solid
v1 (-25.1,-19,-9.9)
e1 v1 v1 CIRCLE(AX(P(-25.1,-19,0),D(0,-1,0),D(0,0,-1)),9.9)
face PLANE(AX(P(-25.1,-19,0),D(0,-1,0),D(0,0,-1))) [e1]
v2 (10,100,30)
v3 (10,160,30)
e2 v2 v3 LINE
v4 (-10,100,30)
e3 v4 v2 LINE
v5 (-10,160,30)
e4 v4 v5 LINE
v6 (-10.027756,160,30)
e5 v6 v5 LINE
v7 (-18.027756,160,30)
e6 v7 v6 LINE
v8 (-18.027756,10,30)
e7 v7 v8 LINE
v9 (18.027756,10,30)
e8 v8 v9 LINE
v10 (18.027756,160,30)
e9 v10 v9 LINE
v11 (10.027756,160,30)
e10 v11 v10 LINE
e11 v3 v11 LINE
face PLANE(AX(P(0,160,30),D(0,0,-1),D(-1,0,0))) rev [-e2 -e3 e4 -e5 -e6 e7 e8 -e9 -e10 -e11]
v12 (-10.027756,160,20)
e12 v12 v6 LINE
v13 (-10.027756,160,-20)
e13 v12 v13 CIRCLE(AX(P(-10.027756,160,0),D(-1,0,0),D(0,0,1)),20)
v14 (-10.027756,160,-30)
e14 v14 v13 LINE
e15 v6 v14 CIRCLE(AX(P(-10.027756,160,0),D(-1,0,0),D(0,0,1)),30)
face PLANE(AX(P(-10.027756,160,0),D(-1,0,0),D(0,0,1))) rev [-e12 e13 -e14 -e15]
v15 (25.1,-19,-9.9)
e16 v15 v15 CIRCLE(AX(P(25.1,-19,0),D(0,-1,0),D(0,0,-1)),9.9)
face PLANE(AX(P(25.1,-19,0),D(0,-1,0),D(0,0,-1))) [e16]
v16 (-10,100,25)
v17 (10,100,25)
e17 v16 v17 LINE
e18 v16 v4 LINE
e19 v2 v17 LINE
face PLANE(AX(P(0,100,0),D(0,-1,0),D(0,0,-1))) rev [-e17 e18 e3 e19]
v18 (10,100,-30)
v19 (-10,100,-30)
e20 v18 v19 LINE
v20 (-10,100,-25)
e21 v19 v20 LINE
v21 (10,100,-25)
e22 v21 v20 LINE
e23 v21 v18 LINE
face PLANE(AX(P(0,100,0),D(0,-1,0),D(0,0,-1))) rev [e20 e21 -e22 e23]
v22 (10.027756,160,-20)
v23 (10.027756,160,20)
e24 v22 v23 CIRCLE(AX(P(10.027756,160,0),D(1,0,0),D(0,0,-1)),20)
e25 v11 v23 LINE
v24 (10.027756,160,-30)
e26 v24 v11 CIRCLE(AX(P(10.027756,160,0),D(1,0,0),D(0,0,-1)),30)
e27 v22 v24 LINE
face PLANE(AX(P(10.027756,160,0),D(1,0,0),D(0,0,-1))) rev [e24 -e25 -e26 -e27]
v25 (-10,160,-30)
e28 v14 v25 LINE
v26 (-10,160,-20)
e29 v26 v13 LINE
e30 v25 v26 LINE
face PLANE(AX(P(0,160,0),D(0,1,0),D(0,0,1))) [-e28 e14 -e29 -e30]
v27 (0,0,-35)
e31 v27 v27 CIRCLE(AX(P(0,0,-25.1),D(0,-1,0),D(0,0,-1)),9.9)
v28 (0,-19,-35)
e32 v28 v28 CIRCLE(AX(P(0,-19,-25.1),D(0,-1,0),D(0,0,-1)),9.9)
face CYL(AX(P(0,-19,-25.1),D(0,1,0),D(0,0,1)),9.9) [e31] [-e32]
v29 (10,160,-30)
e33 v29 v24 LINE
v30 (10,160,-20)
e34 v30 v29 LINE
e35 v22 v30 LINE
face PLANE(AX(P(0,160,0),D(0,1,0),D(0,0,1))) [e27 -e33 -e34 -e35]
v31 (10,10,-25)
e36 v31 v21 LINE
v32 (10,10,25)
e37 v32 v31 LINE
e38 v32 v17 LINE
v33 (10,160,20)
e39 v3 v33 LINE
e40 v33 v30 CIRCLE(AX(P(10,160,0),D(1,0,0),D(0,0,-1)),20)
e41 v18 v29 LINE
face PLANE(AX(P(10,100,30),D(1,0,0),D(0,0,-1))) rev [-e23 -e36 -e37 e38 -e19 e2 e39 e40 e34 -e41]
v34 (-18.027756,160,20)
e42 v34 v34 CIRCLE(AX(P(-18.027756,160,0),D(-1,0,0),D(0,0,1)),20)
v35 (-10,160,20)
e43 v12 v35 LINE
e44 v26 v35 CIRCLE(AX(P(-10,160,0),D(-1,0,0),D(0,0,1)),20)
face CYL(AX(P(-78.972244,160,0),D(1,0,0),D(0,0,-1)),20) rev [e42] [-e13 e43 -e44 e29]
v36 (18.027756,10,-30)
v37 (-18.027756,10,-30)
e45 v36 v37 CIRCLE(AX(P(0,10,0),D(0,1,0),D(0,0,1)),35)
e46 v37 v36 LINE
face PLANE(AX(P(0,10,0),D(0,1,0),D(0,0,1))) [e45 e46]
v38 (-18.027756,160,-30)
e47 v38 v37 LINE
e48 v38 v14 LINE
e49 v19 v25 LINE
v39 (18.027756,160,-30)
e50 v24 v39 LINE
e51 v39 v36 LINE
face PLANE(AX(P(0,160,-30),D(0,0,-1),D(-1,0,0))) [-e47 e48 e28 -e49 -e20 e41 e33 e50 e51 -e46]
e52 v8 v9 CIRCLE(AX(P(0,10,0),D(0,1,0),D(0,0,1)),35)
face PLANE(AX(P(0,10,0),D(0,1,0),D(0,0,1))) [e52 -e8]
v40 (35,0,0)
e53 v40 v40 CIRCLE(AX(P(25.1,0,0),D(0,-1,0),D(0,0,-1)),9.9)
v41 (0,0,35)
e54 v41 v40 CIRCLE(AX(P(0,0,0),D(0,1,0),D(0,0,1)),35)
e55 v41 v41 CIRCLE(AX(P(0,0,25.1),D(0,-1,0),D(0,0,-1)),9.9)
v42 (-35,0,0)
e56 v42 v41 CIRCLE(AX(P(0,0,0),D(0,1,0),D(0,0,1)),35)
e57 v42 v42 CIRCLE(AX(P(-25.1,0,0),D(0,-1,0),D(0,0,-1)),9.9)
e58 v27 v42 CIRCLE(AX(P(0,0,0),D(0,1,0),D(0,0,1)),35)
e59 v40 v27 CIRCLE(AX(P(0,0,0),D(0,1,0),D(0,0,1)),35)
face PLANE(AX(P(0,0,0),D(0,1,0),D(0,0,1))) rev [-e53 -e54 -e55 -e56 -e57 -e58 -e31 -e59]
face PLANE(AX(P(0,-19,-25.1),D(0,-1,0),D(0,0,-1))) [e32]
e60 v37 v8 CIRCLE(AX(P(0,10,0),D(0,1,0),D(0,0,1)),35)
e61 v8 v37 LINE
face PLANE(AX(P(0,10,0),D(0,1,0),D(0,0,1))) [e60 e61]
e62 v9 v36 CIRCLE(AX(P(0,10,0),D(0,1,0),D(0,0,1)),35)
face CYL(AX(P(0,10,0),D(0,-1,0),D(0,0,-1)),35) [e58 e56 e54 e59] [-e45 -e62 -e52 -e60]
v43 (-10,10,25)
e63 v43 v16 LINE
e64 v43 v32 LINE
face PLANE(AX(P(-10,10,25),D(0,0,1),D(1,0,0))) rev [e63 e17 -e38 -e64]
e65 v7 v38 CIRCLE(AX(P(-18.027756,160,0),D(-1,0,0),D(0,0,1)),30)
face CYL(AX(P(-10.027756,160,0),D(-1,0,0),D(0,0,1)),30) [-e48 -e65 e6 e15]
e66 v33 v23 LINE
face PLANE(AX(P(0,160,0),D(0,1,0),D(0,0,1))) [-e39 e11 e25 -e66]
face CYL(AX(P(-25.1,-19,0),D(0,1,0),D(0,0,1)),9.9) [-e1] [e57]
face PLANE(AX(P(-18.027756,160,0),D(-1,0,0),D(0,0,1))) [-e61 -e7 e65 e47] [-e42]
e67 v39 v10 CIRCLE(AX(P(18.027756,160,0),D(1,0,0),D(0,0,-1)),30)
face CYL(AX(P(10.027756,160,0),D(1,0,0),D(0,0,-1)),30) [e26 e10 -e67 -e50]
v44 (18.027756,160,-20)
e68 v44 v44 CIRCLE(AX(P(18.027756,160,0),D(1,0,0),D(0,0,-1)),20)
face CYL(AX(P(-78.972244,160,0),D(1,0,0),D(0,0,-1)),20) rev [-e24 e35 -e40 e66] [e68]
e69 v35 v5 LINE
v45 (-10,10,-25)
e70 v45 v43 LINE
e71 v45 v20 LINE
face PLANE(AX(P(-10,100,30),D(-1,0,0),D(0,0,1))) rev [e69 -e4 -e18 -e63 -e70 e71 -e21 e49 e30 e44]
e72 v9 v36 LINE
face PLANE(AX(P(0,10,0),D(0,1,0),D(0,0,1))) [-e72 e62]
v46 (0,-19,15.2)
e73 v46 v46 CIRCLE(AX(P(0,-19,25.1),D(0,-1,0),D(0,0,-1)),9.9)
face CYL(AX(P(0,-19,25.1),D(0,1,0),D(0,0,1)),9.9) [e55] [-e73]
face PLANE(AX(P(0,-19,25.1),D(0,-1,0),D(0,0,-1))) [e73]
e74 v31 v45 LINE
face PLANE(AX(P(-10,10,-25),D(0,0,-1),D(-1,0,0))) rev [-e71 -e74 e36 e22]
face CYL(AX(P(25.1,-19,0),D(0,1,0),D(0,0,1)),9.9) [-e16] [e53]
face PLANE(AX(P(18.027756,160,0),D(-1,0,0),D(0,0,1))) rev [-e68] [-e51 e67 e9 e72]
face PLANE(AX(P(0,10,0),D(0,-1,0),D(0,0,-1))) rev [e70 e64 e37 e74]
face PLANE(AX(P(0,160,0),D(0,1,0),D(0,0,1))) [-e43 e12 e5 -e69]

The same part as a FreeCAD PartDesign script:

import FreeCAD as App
import Part
import Sketcher

V = App.Vector


def add_polygon(sketch, points):
    """Adds a closed chain of lines whose ends are joined by coincident constraints."""
    first, n = sketch.GeometryCount, len(points)
    for a, b in zip(points, points[1:] + points[:1]):
        sketch.addGeometry(Part.LineSegment(App.Vector(*a, 0), App.Vector(*b, 0)), False)
    for i in range(n):
        sketch.addConstraint(Sketcher.Constraint("Coincident", first + i, 2, first + (i + 1) % n, 1))

doc = App.newDocument("Part")
body = doc.addObject("PartDesign::Body", "Body")

sketch1 = body.newObject("Sketcher::SketchObject", "Sketch")
sketch1.AttachmentSupport = (doc.getObject("XZ_Plane"), [""])
sketch1.MapMode = "FlatFace"
sketch1.addGeometry(Part.Circle(V(0, 0, 0), V(0, 0, 1), 35), False)
sketch1.addConstraint([
    Sketcher.Constraint("Coincident", 0, 3, -1, 1),
    Sketcher.Constraint("Diameter", 0, 70.0),
])
pad1 = body.newObject("PartDesign::Pad", "Pad")
pad1.Profile = sketch1
pad1.Length = 10
pad1.Reversed = True

sketch2 = body.newObject("Sketcher::SketchObject", "Sketch001")
sketch2.AttachmentSupport = (doc.getObject("XZ_Plane"), [""])
sketch2.MapMode = "FlatFace"
sketch2.addGeometry([
    Part.Circle(V(25.1, 0, 0), V(0, 0, 1), 9.9),
    Part.Circle(V(0, -25.1, 0), V(0, 0, 1), 9.9),
    Part.Circle(V(-25.1, 0, 0), V(0, 0, 1), 9.9),
    Part.Circle(V(0, 25.1, 0), V(0, 0, 1), 9.9),
], False)
sketch2.addConstraint([
    Sketcher.Constraint("Equal", 0, 1),
    Sketcher.Constraint("Equal", 1, 2),
    Sketcher.Constraint("Equal", 2, 3),
    Sketcher.Constraint("Symmetric", 0, 3, 2, 3, -1, 1),
    Sketcher.Constraint("Symmetric", 1, 3, 3, 3, -1, 1),
    Sketcher.Constraint("PointOnObject", 0, 3, -1),
    Sketcher.Constraint("PointOnObject", 1, 3, -2),
    Sketcher.Constraint("Diameter", 0, 19.8),
    Sketcher.Constraint("DistanceX", -1, 1, 0, 3, 25.1),
    Sketcher.Constraint("DistanceY", 1, 3, -1, 1, 25.1),
])
pad2 = body.newObject("PartDesign::Pad", "Pad001")
pad2.Profile = sketch2
pad2.Length = 19

sketch3 = body.newObject("Sketcher::SketchObject", "Sketch002")
sketch3.AttachmentSupport = (doc.getObject("XZ_Plane"), [""])
sketch3.MapMode = "FlatFace"
sketch3.AttachmentOffset = App.Placement(V(0, 0, -10), App.Rotation())
add_polygon(sketch3, [(-18.027756, -30), (-18.027756, 30), (18.027756, 30), (18.027756, -30)])
sketch3.addConstraint([
    Sketcher.Constraint("Vertical", 0),
    Sketcher.Constraint("Horizontal", 1),
    Sketcher.Constraint("Vertical", 2),
    Sketcher.Constraint("Horizontal", 3),
    Sketcher.Constraint("Symmetric", 0, 2, 2, 2, -1, 1),
    Sketcher.Constraint("DistanceY", 0, 1, 0, 2, 60.0),
    Sketcher.Constraint("DistanceX", 1, 1, 1, 2, 36.055513),
])
pad3 = body.newObject("PartDesign::Pad", "Pad002")
pad3.Profile = sketch3
pad3.Length = 150
pad3.Reversed = True

sketch4 = body.newObject("Sketcher::SketchObject", "Sketch003")
sketch4.AttachmentSupport = (doc.getObject("XZ_Plane"), [""])
sketch4.MapMode = "FlatFace"
sketch4.AttachmentOffset = App.Placement(V(0, 0, -160), App.Rotation())
add_polygon(sketch4, [(-10, -30), (-10, 30), (10, 30), (10, -30)])
sketch4.addConstraint([
    Sketcher.Constraint("Vertical", 0),
    Sketcher.Constraint("Horizontal", 1),
    Sketcher.Constraint("Vertical", 2),
    Sketcher.Constraint("Horizontal", 3),
    Sketcher.Constraint("Symmetric", 0, 2, 2, 2, -1, 1),
    Sketcher.Constraint("DistanceX", 1, 1, 1, 2, 20.0),
    Sketcher.Constraint("DistanceY", 0, 1, 0, 2, 60.0),
])
pocket1 = body.newObject("PartDesign::Pocket", "Pocket")
pocket1.Profile = sketch4
pocket1.Length = 60
pocket1.Reversed = True

sketch5 = body.newObject("Sketcher::SketchObject", "Sketch004")
sketch5.AttachmentSupport = (doc.getObject("XZ_Plane"), [""])
sketch5.MapMode = "FlatFace"
sketch5.AttachmentOffset = App.Placement(V(0, 0, -100), App.Rotation())
add_polygon(sketch5, [(-10, -25), (-10, 25), (10, 25), (10, -25)])
sketch5.addConstraint([
    Sketcher.Constraint("Vertical", 0),
    Sketcher.Constraint("Horizontal", 1),
    Sketcher.Constraint("Vertical", 2),
    Sketcher.Constraint("Horizontal", 3),
    Sketcher.Constraint("Symmetric", 0, 2, 2, 2, -1, 1),
    Sketcher.Constraint("DistanceX", 1, 1, 1, 2, 20.0),
    Sketcher.Constraint("DistanceY", 0, 1, 0, 2, 50.0),
])
pocket2 = body.newObject("PartDesign::Pocket", "Pocket001")
pocket2.Profile = sketch5
pocket2.Length = 90
pocket2.Reversed = True

sketch6 = body.newObject("Sketcher::SketchObject", "Sketch005")
sketch6.AttachmentSupport = (doc.getObject("YZ_Plane"), [""])
sketch6.MapMode = "FlatFace"
sketch6.AttachmentOffset = App.Placement(V(0, 0, -18.027756), App.Rotation())
sketch6.addGeometry(Part.Circle(V(160, 0, 0), V(0, 0, 1), 30), False)
sketch6.addConstraint([
    Sketcher.Constraint("PointOnObject", 0, 3, -1),
    Sketcher.Constraint("Diameter", 0, 60.0),
    Sketcher.Constraint("DistanceX", -1, 1, 0, 3, 160.0),
])
pad4 = body.newObject("PartDesign::Pad", "Pad003")
pad4.Profile = sketch6
pad4.Length = 8

sketch7 = body.newObject("Sketcher::SketchObject", "Sketch006")
sketch7.AttachmentSupport = (doc.getObject("YZ_Plane"), [""])
sketch7.MapMode = "FlatFace"
sketch7.AttachmentOffset = App.Placement(V(0, 0, 18.027756), App.Rotation())
sketch7.addGeometry(Part.Circle(V(160, 0, 0), V(0, 0, 1), 30), False)
sketch7.addConstraint([
    Sketcher.Constraint("PointOnObject", 0, 3, -1),
    Sketcher.Constraint("Diameter", 0, 60.0),
    Sketcher.Constraint("DistanceX", -1, 1, 0, 3, 160.0),
])
pad5 = body.newObject("PartDesign::Pad", "Pad004")
pad5.Profile = sketch7
pad5.Length = 8
pad5.Reversed = True

sketch8 = body.newObject("Sketcher::SketchObject", "Sketch007")
sketch8.AttachmentSupport = (doc.getObject("YZ_Plane"), [""])
sketch8.MapMode = "FlatFace"
sketch8.AttachmentOffset = App.Placement(V(0, 0, 18.027756), App.Rotation())
sketch8.addGeometry(Part.Circle(V(160, 0, 0), V(0, 0, 1), 20), False)
sketch8.addConstraint([
    Sketcher.Constraint("PointOnObject", 0, 3, -1),
    Sketcher.Constraint("Diameter", 0, 40.0),
    Sketcher.Constraint("DistanceX", -1, 1, 0, 3, 160.0),
])
pocket3 = body.newObject("PartDesign::Pocket", "Pocket002")
pocket3.Profile = sketch8
pocket3.Length = 97

doc.recompute()
